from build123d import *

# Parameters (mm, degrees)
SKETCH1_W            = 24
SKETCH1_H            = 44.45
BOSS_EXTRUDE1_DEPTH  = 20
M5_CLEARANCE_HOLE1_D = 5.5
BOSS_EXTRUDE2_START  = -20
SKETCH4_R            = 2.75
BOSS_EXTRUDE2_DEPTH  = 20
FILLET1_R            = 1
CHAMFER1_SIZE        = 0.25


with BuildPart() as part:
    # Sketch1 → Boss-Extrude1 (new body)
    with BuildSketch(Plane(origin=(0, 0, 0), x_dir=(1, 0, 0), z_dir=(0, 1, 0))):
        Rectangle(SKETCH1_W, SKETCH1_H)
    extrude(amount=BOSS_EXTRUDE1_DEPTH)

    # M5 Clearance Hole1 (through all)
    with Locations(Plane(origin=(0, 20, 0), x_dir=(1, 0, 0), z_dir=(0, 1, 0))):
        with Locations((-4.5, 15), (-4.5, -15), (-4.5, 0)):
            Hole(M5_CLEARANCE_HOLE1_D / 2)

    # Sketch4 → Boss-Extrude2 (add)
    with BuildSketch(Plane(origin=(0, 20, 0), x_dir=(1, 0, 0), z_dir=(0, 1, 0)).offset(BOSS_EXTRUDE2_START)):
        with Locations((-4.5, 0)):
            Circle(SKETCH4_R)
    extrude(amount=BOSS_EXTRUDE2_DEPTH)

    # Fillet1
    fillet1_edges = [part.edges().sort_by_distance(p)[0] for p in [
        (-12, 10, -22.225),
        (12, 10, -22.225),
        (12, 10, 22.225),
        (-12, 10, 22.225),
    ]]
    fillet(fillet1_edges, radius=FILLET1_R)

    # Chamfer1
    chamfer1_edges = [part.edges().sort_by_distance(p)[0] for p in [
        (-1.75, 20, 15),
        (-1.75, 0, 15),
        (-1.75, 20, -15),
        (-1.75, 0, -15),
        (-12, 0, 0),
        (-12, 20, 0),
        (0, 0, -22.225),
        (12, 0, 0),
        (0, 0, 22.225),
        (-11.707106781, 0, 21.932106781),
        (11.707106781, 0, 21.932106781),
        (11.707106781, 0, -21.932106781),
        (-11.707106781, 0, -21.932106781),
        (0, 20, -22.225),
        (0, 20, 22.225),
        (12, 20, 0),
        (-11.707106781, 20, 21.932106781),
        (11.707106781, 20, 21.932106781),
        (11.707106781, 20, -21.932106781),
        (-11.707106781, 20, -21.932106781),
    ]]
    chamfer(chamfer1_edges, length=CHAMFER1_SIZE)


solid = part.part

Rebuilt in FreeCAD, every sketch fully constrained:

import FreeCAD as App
import Part
import Sketcher

V = App.Vector
Q = App.Units.Quantity


def edges_at(feature, points):
    """Names of the edges that pass closest to the given points."""
    edges = feature.Shape.Edges
    near = lambda p: min(range(len(edges)), key=lambda i: edges[i].distToShape(Part.Vertex(*p))[0])
    return sorted({f"Edge{near(p) + 1}" for p in points})

doc = App.newDocument("Part")
body = doc.addObject("PartDesign::Body", "Body")

sketch1 = body.newObject("Sketcher::SketchObject", "Sketch")
sketch1.AttachmentSupport = (doc.getObject("XZ_Plane"), [""])
sketch1.MapMode = "FlatFace"
sketch1.addGeometry(Part.LineSegment(V(-12, -22.225, 0), V(-12, 22.225, 0)), False)
sketch1.addGeometry(Part.LineSegment(V(-12, 22.225, 0), V(12, 22.225, 0)), False)
sketch1.addGeometry(Part.LineSegment(V(12, 22.225, 0), V(12, -22.225, 0)), False)
sketch1.addGeometry(Part.LineSegment(V(12, -22.225, 0), V(-12, -22.225, 0)), False)
sketch1.addConstraint(Sketcher.Constraint("Coincident", 0, 2, 1, 1))
sketch1.addConstraint(Sketcher.Constraint("Coincident", 1, 2, 2, 1))
sketch1.addConstraint(Sketcher.Constraint("Coincident", 2, 2, 3, 1))
sketch1.addConstraint(Sketcher.Constraint("Coincident", 3, 2, 0, 1))
sketch1.addConstraint(Sketcher.Constraint("Vertical", 0))
sketch1.addConstraint(Sketcher.Constraint("Horizontal", 1))
sketch1.addConstraint(Sketcher.Constraint("Vertical", 2))
sketch1.addConstraint(Sketcher.Constraint("Horizontal", 3))
sketch1.addConstraint(Sketcher.Constraint("Symmetric", 0, 2, 2, 2, -1, 1))
sketch1.addConstraint(Sketcher.Constraint("DistanceX", 1, 1, 1, 2, Q("24 mm")))
sketch1.addConstraint(Sketcher.Constraint("DistanceY", 0, 1, 0, 2, Q("44.45 mm")))
pad1 = body.newObject("PartDesign::Pad", "Pad")
pad1.Profile = sketch1
pad1.Length = 20
pad1.Reversed = True

sketch2 = body.newObject("Sketcher::SketchObject", "Sketch001")
sketch2.AttachmentSupport = (doc.getObject("XZ_Plane"), [""])
sketch2.MapMode = "FlatFace"
sketch2.AttachmentOffset = App.Placement(V(0, 0, -20), App.Rotation())
sketch2.addGeometry(Part.Circle(V(-4.5, -15, 0), V(0, 0, 1), 2.75), False)
sketch2.addGeometry(Part.Circle(V(-4.5, 15, 0), V(0, 0, 1), 2.75), False)
sketch2.addGeometry(Part.Circle(V(-4.5, 0, 0), V(0, 0, 1), 2.75), False)
sketch2.addConstraint(Sketcher.Constraint("Equal", 0, 1))
sketch2.addConstraint(Sketcher.Constraint("Equal", 1, 2))
sketch2.addConstraint(Sketcher.Constraint("Symmetric", 0, 3, 1, 3, -1))
sketch2.addConstraint(Sketcher.Constraint("PointOnObject", 2, 3, -1))
sketch2.addConstraint(Sketcher.Constraint("Vertical", 1, 3, 2, 3))
sketch2.addConstraint(Sketcher.Constraint("Diameter", 0, Q("5.5 mm")))
sketch2.addConstraint(Sketcher.Constraint("DistanceY", 0, 3, -1, 1, Q("15 mm")))
sketch2.addConstraint(Sketcher.Constraint("DistanceX", 0, 3, -1, 1, Q("4.5 mm")))
doc.recompute()
hole = body.newObject("PartDesign::Hole", "Hole")
hole.Profile = sketch2
hole.ThreadType = "None"
hole.Diameter = 5.5
hole.DepthType = "ThroughAll"
hole.Reversed = True

sketch3 = body.newObject("Sketcher::SketchObject", "Sketch002")
sketch3.AttachmentSupport = (doc.getObject("XZ_Plane"), [""])
sketch3.MapMode = "FlatFace"
sketch3.addGeometry(Part.Circle(V(-4.5, 0, 0), V(0, 0, 1), 2.75), False)
sketch3.addConstraint(Sketcher.Constraint("PointOnObject", 0, 3, -1))
sketch3.addConstraint(Sketcher.Constraint("Diameter", 0, Q("5.5 mm")))
sketch3.addConstraint(Sketcher.Constraint("DistanceX", 0, 3, -1, 1, Q("4.5 mm")))
pad2 = body.newObject("PartDesign::Pad", "Pad001")
pad2.Profile = sketch3
pad2.Length = 20
pad2.Reversed = True
doc.recompute()

fillet = body.newObject("PartDesign::Fillet", "Fillet")
fillet.Base = (pad2, edges_at(pad2, [
    (-12, 10, -22.225),
    (12, 10, -22.225),
    (12, 10, 22.225),
    (-12, 10, 22.225),
]))
fillet.Radius = 1
doc.recompute()

chamfer = body.newObject("PartDesign::Chamfer", "Chamfer")
chamfer.Base = (fillet, edges_at(fillet, [
    (-1.75, 20, 15),
    (-1.75, 0, 15),
    (-1.75, 20, -15),
    (-1.75, 0, -15),
    (-12, 0, 0),
    (-12, 20, 0),
    (0, 0, -22.225),
    (12, 0, 0),
    (0, 0, 22.225),
    (-11.707, 0, 21.932),
    (11.707, 0, 21.932),
    (11.707, 0, -21.932),
    (-11.707, 0, -21.932),
    (0, 20, -22.225),
    (0, 20, 22.225),
    (12, 20, 0),
    (-11.707, 20, 21.932),
    (11.707, 20, 21.932),
    (11.707, 20, -21.932),
    (-11.707, 20, -21.932),
]))
chamfer.Size = 0.25

doc.recompute()
